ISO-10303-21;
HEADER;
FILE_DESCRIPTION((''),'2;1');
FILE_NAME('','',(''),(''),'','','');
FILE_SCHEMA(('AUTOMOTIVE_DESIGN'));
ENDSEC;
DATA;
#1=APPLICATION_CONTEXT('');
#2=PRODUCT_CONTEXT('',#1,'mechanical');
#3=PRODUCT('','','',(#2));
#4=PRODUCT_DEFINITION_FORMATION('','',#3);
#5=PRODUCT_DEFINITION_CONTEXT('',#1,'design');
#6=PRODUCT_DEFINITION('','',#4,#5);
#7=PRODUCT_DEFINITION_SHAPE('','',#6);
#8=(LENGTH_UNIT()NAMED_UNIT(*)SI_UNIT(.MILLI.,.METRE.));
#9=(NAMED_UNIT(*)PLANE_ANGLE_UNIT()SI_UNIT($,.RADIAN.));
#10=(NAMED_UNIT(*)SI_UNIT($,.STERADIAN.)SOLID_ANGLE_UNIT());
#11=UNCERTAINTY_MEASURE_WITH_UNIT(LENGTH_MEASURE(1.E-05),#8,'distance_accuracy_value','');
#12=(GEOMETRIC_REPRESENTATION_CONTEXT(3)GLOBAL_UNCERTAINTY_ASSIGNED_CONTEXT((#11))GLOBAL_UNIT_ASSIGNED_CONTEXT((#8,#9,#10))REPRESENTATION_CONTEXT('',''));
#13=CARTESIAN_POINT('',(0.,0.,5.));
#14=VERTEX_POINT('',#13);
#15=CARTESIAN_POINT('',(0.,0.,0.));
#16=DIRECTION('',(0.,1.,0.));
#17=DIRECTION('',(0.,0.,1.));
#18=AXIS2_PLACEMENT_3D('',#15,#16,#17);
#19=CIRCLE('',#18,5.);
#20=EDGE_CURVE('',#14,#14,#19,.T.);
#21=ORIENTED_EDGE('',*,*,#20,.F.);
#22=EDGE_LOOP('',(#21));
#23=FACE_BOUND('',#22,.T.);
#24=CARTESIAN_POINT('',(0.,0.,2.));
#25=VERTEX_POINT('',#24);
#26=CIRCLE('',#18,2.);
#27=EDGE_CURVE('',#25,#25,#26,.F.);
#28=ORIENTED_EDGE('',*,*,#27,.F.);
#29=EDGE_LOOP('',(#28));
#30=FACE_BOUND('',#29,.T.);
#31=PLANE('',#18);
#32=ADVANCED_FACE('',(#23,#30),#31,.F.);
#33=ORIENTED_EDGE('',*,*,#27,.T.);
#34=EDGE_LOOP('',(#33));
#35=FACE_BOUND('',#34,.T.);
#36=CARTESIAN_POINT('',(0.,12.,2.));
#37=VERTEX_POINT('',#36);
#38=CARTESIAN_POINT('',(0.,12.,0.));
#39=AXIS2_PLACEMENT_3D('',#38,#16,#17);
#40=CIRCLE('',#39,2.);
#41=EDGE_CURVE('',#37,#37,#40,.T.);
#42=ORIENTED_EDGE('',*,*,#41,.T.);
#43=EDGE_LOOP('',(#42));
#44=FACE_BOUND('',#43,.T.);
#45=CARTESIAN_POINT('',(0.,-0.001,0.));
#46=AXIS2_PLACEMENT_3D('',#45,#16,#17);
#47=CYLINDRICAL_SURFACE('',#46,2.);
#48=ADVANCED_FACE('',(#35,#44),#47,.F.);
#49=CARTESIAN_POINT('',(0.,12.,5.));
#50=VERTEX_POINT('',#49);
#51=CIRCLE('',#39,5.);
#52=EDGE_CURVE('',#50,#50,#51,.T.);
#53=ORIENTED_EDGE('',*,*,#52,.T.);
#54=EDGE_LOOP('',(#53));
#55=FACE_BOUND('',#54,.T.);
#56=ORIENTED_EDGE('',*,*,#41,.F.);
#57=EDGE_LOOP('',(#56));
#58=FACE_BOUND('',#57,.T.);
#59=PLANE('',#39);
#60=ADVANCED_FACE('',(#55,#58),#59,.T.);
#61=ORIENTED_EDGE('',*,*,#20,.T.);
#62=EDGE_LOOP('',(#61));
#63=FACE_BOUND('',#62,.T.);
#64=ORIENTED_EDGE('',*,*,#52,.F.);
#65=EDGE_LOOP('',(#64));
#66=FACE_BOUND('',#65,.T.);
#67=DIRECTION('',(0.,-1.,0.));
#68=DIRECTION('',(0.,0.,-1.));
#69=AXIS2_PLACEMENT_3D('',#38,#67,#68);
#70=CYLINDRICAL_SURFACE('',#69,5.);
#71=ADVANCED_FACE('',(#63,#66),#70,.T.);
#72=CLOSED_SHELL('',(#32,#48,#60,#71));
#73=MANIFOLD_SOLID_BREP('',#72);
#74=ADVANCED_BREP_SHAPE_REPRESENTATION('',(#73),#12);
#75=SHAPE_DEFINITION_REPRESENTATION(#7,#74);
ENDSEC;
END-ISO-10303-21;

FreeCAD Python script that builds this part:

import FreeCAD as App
import Part
import Sketcher

V = App.Vector

doc = App.newDocument("Part")
body = doc.addObject("PartDesign::Body", "Body")

# Sketch on XZ plane
sketch1 = body.newObject("Sketcher::SketchObject", "Sketch")
sketch1.AttachmentSupport = (doc.getObject("XZ_Plane"), [""])
sketch1.MapMode = "FlatFace"
sketch1.addGeometry(Part.Circle(V(0, 0, 0), V(0, 0, 1), 5), False)
sketch1.addConstraint([
    Sketcher.Constraint("Coincident", 0, 3, -1, 1),
    Sketcher.Constraint("Diameter", 0, 10.0),
])
pad1 = body.newObject("PartDesign::Pad", "Pad")
pad1.Profile = sketch1
pad1.Length = 12
pad1.Reversed = True

# Sketch on XZ plane
sketch2 = body.newObject("Sketcher::SketchObject", "Sketch001")
sketch2.AttachmentSupport = (doc.getObject("XZ_Plane"), [""])
sketch2.MapMode = "FlatFace"
sketch2.AttachmentOffset = App.Placement(V(0, 0, -12), App.Rotation())
sketch2.addGeometry(Part.Circle(V(0, 0, 0), V(0, 0, 1), 2), False)
sketch2.addConstraint([
    Sketcher.Constraint("Coincident", 0, 3, -1, 1),
    Sketcher.Constraint("Diameter", 0, 4.0),
])
pocket1 = body.newObject("PartDesign::Pocket", "Pocket")
pocket1.Profile = sketch2
pocket1.Type = "UpToFirst"
pocket1.Reversed = True

doc.recompute()
